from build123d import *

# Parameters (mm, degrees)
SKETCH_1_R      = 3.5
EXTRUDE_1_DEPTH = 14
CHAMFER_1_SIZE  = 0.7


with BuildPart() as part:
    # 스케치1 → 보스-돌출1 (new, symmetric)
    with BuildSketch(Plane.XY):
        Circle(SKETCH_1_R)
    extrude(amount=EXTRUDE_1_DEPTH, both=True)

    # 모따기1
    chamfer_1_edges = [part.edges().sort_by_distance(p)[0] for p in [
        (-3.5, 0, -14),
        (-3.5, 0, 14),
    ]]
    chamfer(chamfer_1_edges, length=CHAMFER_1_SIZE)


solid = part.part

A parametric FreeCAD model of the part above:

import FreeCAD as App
import Part
import Sketcher

V = App.Vector


def edges_at(feature, points):
    """Names of the edges that pass closest to the given points."""
    edges = feature.Shape.Edges
    near = lambda p: min(range(len(edges)), key=lambda i: edges[i].distToShape(Part.Vertex(*p))[0])
    return sorted({f"Edge{near(p) + 1}" for p in points})

doc = App.newDocument("Part")
body = doc.addObject("PartDesign::Body", "Body")

sketch1 = doc.addObject("Sketcher::SketchObject", "Sketch")
body.addObject(sketch1)
sketch1.AttachmentSupport = (doc.XY_Plane, [""])
sketch1.MapMode = "FlatFace"
sketch1.addGeometry(Part.Circle(V(0, 0, 0), V(0, 0, 1), 3.5), False)
sketch1.addConstraint([
    Sketcher.Constraint("Coincident", 0, 3, -1, 1),
    Sketcher.Constraint("Diameter", 0, 7.0),
])
pad1 = doc.addObject("PartDesign::Pad", "Pad")
body.addObject(pad1)
pad1.Profile = sketch1
pad1.Length = 28
pad1.Midplane = True
doc.recompute()

chamfer = doc.addObject("PartDesign::Chamfer", "Chamfer")
body.addObject(chamfer)
chamfer.Base = (pad1, edges_at(pad1, [(-3.5, 0, -14), (-3.5, 0, 14)]))
chamfer.Size = 0.7

doc.recompute()
